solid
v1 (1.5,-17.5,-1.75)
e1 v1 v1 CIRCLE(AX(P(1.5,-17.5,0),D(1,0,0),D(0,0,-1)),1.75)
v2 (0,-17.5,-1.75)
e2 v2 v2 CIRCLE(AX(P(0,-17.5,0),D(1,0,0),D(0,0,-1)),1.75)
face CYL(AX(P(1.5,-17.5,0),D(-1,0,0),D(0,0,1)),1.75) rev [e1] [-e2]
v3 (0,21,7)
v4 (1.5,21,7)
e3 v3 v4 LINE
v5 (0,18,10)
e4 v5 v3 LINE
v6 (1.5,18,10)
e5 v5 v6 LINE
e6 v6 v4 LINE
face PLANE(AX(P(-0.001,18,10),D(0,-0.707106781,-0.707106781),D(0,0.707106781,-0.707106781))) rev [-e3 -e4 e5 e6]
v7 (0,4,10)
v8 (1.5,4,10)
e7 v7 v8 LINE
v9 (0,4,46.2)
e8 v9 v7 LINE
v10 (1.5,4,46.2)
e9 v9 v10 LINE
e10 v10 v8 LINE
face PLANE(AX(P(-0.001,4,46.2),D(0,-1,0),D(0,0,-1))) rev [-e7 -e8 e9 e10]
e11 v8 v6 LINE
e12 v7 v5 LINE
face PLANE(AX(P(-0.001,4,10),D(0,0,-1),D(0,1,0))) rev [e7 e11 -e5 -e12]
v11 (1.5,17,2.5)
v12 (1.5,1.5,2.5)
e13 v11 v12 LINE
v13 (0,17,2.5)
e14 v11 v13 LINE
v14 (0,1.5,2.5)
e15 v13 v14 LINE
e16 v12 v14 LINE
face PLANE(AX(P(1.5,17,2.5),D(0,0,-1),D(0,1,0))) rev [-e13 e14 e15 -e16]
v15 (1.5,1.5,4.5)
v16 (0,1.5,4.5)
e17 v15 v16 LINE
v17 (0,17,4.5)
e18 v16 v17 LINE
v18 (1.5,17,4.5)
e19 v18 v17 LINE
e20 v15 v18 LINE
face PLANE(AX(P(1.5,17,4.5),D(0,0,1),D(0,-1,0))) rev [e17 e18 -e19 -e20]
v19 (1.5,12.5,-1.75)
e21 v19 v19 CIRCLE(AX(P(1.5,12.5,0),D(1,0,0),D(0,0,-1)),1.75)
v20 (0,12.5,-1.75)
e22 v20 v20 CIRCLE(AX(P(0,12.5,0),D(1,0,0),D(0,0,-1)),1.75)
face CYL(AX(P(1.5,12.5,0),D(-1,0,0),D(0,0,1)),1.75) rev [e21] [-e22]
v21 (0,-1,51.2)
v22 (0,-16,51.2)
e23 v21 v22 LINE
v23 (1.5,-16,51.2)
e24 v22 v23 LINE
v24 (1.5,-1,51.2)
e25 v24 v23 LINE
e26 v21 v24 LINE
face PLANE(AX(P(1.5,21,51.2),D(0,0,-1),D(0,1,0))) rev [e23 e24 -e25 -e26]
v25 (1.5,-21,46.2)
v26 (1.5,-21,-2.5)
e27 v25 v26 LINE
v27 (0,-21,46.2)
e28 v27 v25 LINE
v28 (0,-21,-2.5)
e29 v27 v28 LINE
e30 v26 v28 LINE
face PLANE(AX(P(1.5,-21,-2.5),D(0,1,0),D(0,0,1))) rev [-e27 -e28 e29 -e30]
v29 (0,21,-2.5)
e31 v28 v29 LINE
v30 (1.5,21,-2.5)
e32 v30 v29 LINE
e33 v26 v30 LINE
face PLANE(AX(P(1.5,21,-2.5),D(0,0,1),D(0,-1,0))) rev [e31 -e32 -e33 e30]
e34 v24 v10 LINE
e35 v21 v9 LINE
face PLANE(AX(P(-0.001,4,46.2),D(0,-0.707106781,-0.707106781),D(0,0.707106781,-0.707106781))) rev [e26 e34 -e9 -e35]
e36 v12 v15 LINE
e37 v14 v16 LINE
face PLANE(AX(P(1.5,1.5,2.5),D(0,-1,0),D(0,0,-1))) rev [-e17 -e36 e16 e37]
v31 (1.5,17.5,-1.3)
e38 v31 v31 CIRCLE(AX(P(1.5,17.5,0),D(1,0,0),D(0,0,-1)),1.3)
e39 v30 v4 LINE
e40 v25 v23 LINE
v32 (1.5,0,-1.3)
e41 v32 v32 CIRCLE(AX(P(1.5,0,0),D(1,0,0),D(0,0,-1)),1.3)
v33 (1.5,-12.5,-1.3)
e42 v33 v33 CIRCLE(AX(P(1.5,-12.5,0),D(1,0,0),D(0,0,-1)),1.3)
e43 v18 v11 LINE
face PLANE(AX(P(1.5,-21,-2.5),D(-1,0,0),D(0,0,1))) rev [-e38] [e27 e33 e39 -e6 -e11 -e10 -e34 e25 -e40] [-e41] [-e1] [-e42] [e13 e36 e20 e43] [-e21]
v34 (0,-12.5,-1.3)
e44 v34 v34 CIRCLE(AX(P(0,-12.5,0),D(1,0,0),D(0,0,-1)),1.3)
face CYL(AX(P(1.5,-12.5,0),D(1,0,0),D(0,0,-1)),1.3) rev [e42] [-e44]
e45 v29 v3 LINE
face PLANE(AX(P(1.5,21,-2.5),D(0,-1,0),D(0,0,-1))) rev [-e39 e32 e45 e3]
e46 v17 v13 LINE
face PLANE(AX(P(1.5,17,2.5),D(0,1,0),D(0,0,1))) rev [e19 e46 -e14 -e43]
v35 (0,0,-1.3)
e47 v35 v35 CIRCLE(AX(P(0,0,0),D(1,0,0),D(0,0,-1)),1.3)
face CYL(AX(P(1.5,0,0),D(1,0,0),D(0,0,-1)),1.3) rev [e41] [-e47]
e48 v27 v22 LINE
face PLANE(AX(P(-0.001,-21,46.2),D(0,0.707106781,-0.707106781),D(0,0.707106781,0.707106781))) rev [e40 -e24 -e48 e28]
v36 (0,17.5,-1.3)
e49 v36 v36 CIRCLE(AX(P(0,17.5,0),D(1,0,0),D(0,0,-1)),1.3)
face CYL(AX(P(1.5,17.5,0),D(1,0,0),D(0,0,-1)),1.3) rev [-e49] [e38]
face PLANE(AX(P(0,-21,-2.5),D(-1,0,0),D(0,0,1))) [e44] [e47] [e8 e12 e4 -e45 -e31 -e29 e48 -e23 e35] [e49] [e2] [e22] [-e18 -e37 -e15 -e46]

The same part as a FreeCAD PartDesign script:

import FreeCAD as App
import Part
import Sketcher
from FreeCAD import Vector
Q = App.Units.Quantity

doc = App.newDocument("Part")
params = doc.addObject("Spreadsheet::Sheet", "Params")
for row, (alias, value) in enumerate([
    ("sketch1_diameter", "3.5 mm"),
    ("sketch1_width", "42 mm"),
    ("sketch1_height", "53.7 mm"),
    ("pad1_length", "1.5 mm"),
    ("sketch2_diameter", "2.6 mm"),
    ("hole_diameter", "2.6 mm"),
    ("sketch3_height", "2 mm"),
    ("sketch3_width", "15.5 mm"),
    ("sketch4_width", "22 mm"),
    ("sketch4_width2", "14 mm"),
    ("sketch4_height", "36.2 mm"),
    ("sketch5_width", "5 mm"),
], start=1):
    params.set(f"A{row}", alias)
    params.set(f"B{row}", "=" + value)
    params.setAlias(f"B{row}", alias)

body = doc.addObject("PartDesign::Body", "Body")

# Sketch on YZ plane
sketch1 = body.newObject("Sketcher::SketchObject", "Sketch")
sketch1.AttachmentSupport = (doc.getObject("YZ_Plane"), [""])
sketch1.MapMode = "FlatFace"
sketch1.addGeometry([
    Part.LineSegment(Vector(21, 51.2, 0), Vector(-21, 51.2, 0)),  # 0
    Part.LineSegment(Vector(-21, 51.2, 0), Vector(-21, -2.5, 0)),  # 1
    Part.LineSegment(Vector(-21, -2.5, 0), Vector(21, -2.5, 0)),  # 2
    Part.LineSegment(Vector(21, -2.5, 0), Vector(21, 51.2, 0)),  # 3
    Part.Circle(Vector(-17.5, 0, 0), Vector(0, 0, 1), 1.8),  # 4
    Part.Circle(Vector(12.5, 0, 0), Vector(0, 0, 1), 1.8),  # 5
], False)
sketch1.addConstraint([
    Sketcher.Constraint("Coincident", 0, 2, 1, 1),
    Sketcher.Constraint("Coincident", 1, 2, 2, 1),
    Sketcher.Constraint("Coincident", 2, 2, 3, 1),
    Sketcher.Constraint("Coincident", 3, 2, 0, 1),
    Sketcher.Constraint("Horizontal", 0),
    Sketcher.Constraint("Vertical", 1),
    Sketcher.Constraint("Horizontal", 2),
    Sketcher.Constraint("Vertical", 3),
    Sketcher.Constraint("Equal", 4, 5),
    Sketcher.Constraint("PointOnObject", 4, 3, -1),
    Sketcher.Constraint("PointOnObject", 5, 3, -1),
    Sketcher.Constraint("Diameter", 4, Q("3.5 mm")),
    Sketcher.Constraint("DistanceX", 0, 2, 0, 1, Q("42 mm")),
    Sketcher.Constraint("DistanceY", 1, 2, 1, 1, Q("53.7 mm")),
    Sketcher.Constraint("DistanceX", 0, 2, -1, 1, Q("21 mm")),
    Sketcher.Constraint("DistanceX", 4, 3, 5, 3, Q("30 mm")),
    Sketcher.Constraint("DistanceX", 4, 3, -1, 1, Q("17.5 mm")),
    Sketcher.Constraint("DistanceY", -1, 1, 0, 2, Q("51.2 mm")),
])
sketch1.setExpression("Constraints[11]", "Params.sketch1_diameter")
sketch1.setExpression("Constraints[12]", "Params.sketch1_width")
sketch1.setExpression("Constraints[13]", "Params.sketch1_height")
pad1 = body.newObject("PartDesign::Pad", "Pad")
pad1.Profile = sketch1
pad1.setExpression("Length", "Params.pad1_length")

# Sketch on YZ plane
sketch2 = body.newObject("Sketcher::SketchObject", "Sketch001")
sketch2.AttachmentSupport = (doc.getObject("YZ_Plane"), [""])
sketch2.MapMode = "FlatFace"
sketch2.AttachmentOffset = App.Placement(Vector(0, 0, 1.5), App.Rotation())
sketch2.addGeometry([
    Part.Circle(Vector(17.5, 0, 0), Vector(0, 0, 1), 1.3),
    Part.Circle(Vector(-12.5, 0, 0), Vector(0, 0, 1), 1.3),
    Part.Circle(Vector(0, 0, 0), Vector(0, 0, 1), 1.3),
], False)
sketch2.addConstraint([
    Sketcher.Constraint("Coincident", 2, 3, -1, 1),
    Sketcher.Constraint("Equal", 0, 1),
    Sketcher.Constraint("Equal", 1, 2),
    Sketcher.Constraint("PointOnObject", 0, 3, -1),
    Sketcher.Constraint("PointOnObject", 1, 3, -1),
    Sketcher.Constraint("Diameter", 0, Q("2.6 mm")),
    Sketcher.Constraint("DistanceX", 1, 3, 0, 3, Q("30 mm")),
    Sketcher.Constraint("DistanceX", -1, 1, 0, 3, Q("17.5 mm")),
])
sketch2.setExpression("Constraints[5]", "Params.sketch2_diameter")
doc.recompute()
hole = body.newObject("PartDesign::Hole", "Hole")
hole.Profile = sketch2
hole.ThreadType = "None"
hole.setExpression("Diameter", "Params.hole_diameter")
hole.DepthType = "ThroughAll"

# Sketch on YZ plane
sketch3 = body.newObject("Sketcher::SketchObject", "Sketch002")
sketch3.AttachmentSupport = (doc.getObject("YZ_Plane"), [""])
sketch3.MapMode = "FlatFace"
sketch3.addGeometry([
    Part.LineSegment(Vector(17, 2.5, 0), Vector(1.5, 2.5, 0)),
    Part.LineSegment(Vector(1.5, 2.5, 0), Vector(1.5, 4.5, 0)),
    Part.LineSegment(Vector(1.5, 4.5, 0), Vector(17, 4.5, 0)),
    Part.LineSegment(Vector(17, 4.5, 0), Vector(17, 2.5, 0)),
], False)
sketch3.addConstraint([
    Sketcher.Constraint("Coincident", 0, 2, 1, 1),
    Sketcher.Constraint("Coincident", 1, 2, 2, 1),
    Sketcher.Constraint("Coincident", 2, 2, 3, 1),
    Sketcher.Constraint("Coincident", 3, 2, 0, 1),
    Sketcher.Constraint("Horizontal", 0),
    Sketcher.Constraint("Vertical", 1),
    Sketcher.Constraint("Horizontal", 2),
    Sketcher.Constraint("Vertical", 3),
    Sketcher.Constraint("DistanceY", 1, 1, 1, 2, Q("2 mm")),
    Sketcher.Constraint("DistanceX", 0, 2, 0, 1, Q("15.5 mm")),
    Sketcher.Constraint("DistanceX", -1, 1, 2, 2, Q("17 mm")),
    Sketcher.Constraint("DistanceY", -1, 1, 0, 2, Q("2.5 mm")),
])
sketch3.setExpression("Constraints[8]", "Params.sketch3_height")
sketch3.setExpression("Constraints[9]", "Params.sketch3_width")
pocket1 = body.newObject("PartDesign::Pocket", "Pocket")
pocket1.Profile = sketch3
pocket1.Type = "ThroughAll"
pocket1.Reversed = True

# Sketch on YZ plane
sketch4 = body.newObject("Sketcher::SketchObject", "Sketch003")
sketch4.AttachmentSupport = (doc.getObject("YZ_Plane"), [""])
sketch4.MapMode = "FlatFace"
sketch4.AttachmentOffset = App.Placement(Vector(0, 0, 1.5), App.Rotation())
sketch4.addGeometry([
    Part.LineSegment(Vector(21, 51.2, 0), Vector(-1, 51.2, 0)),  # 0
    Part.LineSegment(Vector(-1, 51.2, 0), Vector(4, 46.2, 0)),  # 1
    Part.LineSegment(Vector(4, 46.2, 0), Vector(4, 10, 0)),  # 2
    Part.LineSegment(Vector(4, 10, 0), Vector(18, 10, 0)),  # 3
    Part.LineSegment(Vector(18, 10, 0), Vector(21, 7, 0)),  # 4
    Part.LineSegment(Vector(21, 7, 0), Vector(21, 51.2, 0)),  # 5
], False)
sketch4.addConstraint([
    Sketcher.Constraint("Coincident", 0, 2, 1, 1),
    Sketcher.Constraint("Coincident", 1, 2, 2, 1),
    Sketcher.Constraint("Coincident", 2, 2, 3, 1),
    Sketcher.Constraint("Coincident", 3, 2, 4, 1),
    Sketcher.Constraint("Coincident", 4, 2, 5, 1),
    Sketcher.Constraint("Coincident", 5, 2, 0, 1),
    Sketcher.Constraint("Horizontal", 0),
    Sketcher.Constraint("Vertical", 2),
    Sketcher.Constraint("Horizontal", 3),
    Sketcher.Constraint("Vertical", 5),
    Sketcher.Constraint("Parallel", 1, 4),
    Sketcher.Constraint("DistanceX", 0, 2, 0, 1, Q("22 mm")),
    Sketcher.Constraint("DistanceX", 3, 1, 3, 2, Q("14 mm")),
    Sketcher.Constraint("Angle", 1, Q("-45 deg")),
    Sketcher.Constraint("DistanceY", 2, 2, 2, 1, Q("36.2 mm")),
    Sketcher.Constraint("DistanceX", 0, 2, -1, 1, Q("1 mm")),
    Sketcher.Constraint("DistanceX", -1, 1, 1, 2, Q("4 mm")),
    Sketcher.Constraint("DistanceY", -1, 1, 2, 2, Q("10 mm")),
])
sketch4.setExpression("Constraints[11]", "Params.sketch4_width")
sketch4.setExpression("Constraints[12]", "Params.sketch4_width2")
sketch4.setExpression("Constraints[14]", "Params.sketch4_height")
pocket2 = body.newObject("PartDesign::Pocket", "Pocket001")
pocket2.Profile = sketch4
pocket2.Type = "UpToFirst"

# Sketch on YZ plane
sketch5 = body.newObject("Sketcher::SketchObject", "Sketch004")
sketch5.AttachmentSupport = (doc.getObject("YZ_Plane"), [""])
sketch5.MapMode = "FlatFace"
sketch5.AttachmentOffset = App.Placement(Vector(0, 0, 1.5), App.Rotation())
sketch5.addGeometry([
    Part.LineSegment(Vector(-21, 51, 0), Vector(-21, 46, 0)),
    Part.LineSegment(Vector(-21, 46, 0), Vector(-16, 51, 0)),
    Part.LineSegment(Vector(-16, 51, 0), Vector(-21, 51, 0)),
], False)
sketch5.addConstraint([
    Sketcher.Constraint("Coincident", 0, 2, 1, 1),
    Sketcher.Constraint("Coincident", 1, 2, 2, 1),
    Sketcher.Constraint("Coincident", 2, 2, 0, 1),
    Sketcher.Constraint("Vertical", 0),
    Sketcher.Constraint("Horizontal", 2),
    Sketcher.Constraint("Equal", 2, 0),
    Sketcher.Constraint("DistanceX", 2, 2, 2, 1, Q("5 mm")),
    Sketcher.Constraint("DistanceX", 0, 2, -1, 1, Q("21 mm")),
    Sketcher.Constraint("DistanceY", -1, 1, 0, 2, Q("46.2 mm")),
])
sketch5.setExpression("Constraints[6]", "Params.sketch5_width")
pocket3 = body.newObject("PartDesign::Pocket", "Pocket002")
pocket3.Profile = sketch5
pocket3.Type = "UpToFirst"

doc.recompute()
